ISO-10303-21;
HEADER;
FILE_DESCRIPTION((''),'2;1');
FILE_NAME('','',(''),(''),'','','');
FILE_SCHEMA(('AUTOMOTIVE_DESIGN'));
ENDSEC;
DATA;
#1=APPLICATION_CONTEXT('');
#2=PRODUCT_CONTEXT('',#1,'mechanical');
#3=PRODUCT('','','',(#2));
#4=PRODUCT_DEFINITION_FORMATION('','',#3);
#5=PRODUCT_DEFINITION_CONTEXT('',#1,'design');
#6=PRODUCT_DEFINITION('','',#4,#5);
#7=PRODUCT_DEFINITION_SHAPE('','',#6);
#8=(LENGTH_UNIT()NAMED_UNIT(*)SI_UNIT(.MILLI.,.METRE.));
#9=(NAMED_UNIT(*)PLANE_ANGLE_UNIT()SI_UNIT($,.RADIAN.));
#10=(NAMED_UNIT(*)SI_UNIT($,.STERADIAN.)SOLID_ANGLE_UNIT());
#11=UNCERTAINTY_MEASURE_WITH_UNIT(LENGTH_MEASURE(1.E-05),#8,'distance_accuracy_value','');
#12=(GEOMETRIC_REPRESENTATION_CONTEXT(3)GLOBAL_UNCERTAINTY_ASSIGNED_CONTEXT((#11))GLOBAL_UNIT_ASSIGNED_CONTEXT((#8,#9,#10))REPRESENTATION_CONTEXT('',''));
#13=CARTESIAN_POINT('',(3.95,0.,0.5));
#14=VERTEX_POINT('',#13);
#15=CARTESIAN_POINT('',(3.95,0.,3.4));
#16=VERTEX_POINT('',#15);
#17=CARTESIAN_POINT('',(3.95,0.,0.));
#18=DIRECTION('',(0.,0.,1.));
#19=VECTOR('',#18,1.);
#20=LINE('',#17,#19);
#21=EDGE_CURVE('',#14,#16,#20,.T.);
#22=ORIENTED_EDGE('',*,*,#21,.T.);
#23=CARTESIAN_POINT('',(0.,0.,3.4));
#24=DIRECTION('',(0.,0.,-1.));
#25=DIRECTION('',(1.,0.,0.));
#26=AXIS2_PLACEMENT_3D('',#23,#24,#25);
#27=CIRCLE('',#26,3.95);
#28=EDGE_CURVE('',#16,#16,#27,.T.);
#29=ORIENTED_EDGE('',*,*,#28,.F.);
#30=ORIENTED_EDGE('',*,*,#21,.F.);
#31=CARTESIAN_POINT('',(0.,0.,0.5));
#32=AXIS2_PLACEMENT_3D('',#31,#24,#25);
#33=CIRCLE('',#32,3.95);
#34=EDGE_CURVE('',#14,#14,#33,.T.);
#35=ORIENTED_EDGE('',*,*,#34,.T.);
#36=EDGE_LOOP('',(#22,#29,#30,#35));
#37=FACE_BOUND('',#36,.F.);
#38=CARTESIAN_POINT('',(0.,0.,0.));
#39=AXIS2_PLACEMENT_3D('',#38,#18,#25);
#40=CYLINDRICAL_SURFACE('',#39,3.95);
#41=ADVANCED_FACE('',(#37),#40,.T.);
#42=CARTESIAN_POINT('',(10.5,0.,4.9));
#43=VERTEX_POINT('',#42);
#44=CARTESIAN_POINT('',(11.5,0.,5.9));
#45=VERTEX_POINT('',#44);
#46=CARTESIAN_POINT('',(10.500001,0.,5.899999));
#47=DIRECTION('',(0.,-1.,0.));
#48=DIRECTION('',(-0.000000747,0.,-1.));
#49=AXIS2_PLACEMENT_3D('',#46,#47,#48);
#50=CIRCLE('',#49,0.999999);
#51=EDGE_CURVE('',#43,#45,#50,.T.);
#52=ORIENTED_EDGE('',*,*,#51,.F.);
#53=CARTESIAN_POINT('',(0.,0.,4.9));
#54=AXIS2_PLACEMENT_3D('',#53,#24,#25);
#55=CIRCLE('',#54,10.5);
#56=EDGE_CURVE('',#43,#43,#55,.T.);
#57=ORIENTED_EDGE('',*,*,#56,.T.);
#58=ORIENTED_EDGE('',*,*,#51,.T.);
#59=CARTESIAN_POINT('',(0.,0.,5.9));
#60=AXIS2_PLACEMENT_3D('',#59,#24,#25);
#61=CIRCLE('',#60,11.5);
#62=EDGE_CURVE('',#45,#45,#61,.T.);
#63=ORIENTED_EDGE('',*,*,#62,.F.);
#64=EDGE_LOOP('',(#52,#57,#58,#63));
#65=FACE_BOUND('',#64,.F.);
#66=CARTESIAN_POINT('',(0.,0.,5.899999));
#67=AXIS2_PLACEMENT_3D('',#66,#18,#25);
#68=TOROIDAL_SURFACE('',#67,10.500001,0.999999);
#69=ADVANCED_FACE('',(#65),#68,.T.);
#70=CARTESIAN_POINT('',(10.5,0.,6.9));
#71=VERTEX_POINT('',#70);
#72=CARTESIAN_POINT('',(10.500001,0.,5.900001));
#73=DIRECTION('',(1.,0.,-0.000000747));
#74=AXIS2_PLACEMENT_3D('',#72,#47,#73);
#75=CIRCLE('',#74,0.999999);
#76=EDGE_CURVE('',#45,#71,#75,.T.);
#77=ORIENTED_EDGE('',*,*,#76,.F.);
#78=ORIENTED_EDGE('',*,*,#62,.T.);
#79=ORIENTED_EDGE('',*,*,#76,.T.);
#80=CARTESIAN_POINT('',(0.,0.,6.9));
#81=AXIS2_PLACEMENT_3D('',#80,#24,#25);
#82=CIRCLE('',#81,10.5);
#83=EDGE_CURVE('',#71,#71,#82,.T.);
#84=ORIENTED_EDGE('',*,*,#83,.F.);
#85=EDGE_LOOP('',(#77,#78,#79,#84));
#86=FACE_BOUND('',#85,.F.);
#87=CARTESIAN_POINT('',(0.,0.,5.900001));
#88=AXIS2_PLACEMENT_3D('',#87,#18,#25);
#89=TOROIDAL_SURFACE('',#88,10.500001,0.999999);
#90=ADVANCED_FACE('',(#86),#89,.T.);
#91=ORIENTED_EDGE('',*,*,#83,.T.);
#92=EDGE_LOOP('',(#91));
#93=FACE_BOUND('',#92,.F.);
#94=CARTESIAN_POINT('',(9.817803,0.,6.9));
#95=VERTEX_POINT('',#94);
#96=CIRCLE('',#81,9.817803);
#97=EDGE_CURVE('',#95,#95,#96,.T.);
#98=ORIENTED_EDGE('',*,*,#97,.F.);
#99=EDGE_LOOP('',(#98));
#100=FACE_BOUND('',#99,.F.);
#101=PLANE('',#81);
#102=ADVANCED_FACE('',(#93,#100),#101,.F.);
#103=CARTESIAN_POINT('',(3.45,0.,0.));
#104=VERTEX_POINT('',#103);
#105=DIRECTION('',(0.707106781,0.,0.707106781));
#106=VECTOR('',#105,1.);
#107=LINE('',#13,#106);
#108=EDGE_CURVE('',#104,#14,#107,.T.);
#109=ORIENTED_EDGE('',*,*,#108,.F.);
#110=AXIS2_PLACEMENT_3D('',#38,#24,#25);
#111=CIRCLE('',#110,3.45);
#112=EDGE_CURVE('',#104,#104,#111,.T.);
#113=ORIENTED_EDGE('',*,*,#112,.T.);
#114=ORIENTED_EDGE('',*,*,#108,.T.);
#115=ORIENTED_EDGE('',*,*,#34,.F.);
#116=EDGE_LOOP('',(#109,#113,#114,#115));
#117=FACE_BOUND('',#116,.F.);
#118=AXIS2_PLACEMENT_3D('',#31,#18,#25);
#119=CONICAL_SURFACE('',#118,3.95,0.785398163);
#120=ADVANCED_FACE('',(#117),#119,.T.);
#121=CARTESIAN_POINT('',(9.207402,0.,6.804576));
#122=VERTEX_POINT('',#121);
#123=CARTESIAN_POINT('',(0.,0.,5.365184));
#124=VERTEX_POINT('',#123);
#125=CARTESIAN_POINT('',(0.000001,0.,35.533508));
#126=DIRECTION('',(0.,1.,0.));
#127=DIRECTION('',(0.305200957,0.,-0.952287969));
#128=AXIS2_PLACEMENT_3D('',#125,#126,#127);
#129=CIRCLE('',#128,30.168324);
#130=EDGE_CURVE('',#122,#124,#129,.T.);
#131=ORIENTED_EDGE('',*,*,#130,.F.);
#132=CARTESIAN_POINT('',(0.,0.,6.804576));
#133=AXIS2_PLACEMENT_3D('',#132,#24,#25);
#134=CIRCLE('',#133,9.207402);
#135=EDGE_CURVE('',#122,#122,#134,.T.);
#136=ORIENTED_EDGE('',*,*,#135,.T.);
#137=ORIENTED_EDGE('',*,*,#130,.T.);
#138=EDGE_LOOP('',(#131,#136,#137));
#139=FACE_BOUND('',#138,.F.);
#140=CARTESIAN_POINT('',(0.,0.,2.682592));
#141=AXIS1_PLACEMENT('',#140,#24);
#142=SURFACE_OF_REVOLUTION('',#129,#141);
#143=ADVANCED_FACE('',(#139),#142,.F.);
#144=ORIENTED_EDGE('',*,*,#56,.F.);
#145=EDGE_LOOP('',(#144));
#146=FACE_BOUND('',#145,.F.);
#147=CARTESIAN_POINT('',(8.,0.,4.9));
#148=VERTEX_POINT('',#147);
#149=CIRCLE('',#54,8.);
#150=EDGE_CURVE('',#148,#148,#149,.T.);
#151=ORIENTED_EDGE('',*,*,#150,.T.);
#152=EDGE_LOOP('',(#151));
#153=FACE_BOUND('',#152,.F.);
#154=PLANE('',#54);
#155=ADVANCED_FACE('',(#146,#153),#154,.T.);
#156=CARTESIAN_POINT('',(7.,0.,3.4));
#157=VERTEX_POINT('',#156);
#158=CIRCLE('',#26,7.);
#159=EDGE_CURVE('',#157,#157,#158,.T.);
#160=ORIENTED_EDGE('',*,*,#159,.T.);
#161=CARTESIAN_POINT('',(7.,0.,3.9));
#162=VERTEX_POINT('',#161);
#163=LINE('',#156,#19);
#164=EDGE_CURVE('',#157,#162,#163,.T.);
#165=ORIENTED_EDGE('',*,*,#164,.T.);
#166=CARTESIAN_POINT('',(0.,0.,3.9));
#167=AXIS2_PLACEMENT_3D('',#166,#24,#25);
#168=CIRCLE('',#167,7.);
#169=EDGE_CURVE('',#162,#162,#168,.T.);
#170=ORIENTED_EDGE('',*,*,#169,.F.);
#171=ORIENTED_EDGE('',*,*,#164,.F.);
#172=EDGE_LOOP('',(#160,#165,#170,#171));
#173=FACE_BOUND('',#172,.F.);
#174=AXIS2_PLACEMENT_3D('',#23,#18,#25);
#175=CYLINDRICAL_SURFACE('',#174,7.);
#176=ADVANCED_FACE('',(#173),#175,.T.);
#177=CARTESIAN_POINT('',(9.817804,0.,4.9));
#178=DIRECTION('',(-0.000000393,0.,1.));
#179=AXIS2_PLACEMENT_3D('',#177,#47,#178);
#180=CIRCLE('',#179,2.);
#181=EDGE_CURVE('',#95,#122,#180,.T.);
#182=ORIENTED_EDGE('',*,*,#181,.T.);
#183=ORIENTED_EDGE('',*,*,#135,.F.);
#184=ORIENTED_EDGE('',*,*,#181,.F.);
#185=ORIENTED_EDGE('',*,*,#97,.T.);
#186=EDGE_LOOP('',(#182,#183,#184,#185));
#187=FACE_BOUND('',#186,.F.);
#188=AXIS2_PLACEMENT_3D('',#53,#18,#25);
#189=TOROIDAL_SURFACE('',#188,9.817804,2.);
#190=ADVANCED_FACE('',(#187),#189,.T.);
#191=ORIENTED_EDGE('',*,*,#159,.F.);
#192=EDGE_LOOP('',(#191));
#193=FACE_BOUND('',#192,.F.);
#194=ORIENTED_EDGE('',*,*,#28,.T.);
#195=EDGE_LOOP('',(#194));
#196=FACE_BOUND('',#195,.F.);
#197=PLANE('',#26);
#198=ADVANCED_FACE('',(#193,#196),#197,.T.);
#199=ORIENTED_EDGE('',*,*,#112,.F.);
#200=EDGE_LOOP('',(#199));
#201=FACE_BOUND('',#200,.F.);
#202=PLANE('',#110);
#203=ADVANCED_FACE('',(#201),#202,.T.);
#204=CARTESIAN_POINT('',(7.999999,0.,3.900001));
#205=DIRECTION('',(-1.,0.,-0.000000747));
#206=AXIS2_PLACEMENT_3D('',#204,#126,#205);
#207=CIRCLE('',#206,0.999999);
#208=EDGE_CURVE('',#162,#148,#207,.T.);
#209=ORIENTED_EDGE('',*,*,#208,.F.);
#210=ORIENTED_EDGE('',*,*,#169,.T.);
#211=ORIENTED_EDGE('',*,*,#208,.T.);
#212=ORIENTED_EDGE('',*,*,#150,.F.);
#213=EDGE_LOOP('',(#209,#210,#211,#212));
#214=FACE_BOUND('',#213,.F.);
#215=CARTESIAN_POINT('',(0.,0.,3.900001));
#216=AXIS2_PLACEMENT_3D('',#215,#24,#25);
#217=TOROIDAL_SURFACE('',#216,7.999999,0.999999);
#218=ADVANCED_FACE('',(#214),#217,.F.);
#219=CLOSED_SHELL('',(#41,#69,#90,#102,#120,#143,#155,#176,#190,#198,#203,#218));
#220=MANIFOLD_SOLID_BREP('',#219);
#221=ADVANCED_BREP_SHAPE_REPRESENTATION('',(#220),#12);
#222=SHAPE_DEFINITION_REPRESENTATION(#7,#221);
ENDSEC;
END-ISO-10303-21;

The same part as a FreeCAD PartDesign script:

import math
import FreeCAD as App
import Part
import Sketcher
Q = App.Units.Quantity


def edges_at(feature, points):
    """Names of the edges that pass closest to the given points."""
    edges = feature.Shape.Edges
    near = lambda p: min(range(len(edges)), key=lambda i: edges[i].distToShape(Part.Vertex(*p))[0])
    return sorted({f"Edge{near(p) + 1}" for p in points})

doc = App.newDocument("Part")
body = doc.addObject("PartDesign::Body", "Body")

sketch1 = doc.addObject("Sketcher::SketchObject", "Sketch")
body.addObject(sketch1)
sketch1.AttachmentSupport = (doc.XZ_Plane, [""])
sketch1.MapMode = "FlatFace"
sketch1.addGeometry([
    Part.LineSegment(App.Vector(0, 5.4, 0), App.Vector(0, 0, 0)),
    Part.LineSegment(App.Vector(0, 0, 0), App.Vector(4, 0, 0)),
    Part.LineSegment(App.Vector(4, 0, 0), App.Vector(4, 3.4, 0)),
    Part.LineSegment(App.Vector(4, 3.4, 0), App.Vector(7, 3.4, 0)),
    Part.LineSegment(App.Vector(7, 3.4, 0), App.Vector(7, 3.9, 0)),
    Part.ArcOfCircle(Part.Circle(App.Vector(8, 3.9, 0), App.Vector(0, 0, 1), 1), math.radians(90), math.radians(180)),
    Part.LineSegment(App.Vector(8, 4.9, 0), App.Vector(10.5, 4.9, 0)),
    Part.ArcOfCircle(Part.Circle(App.Vector(10.5, 5.9, 0), App.Vector(0, 0, 1), 1), math.radians(-90), math.radians(0)),
    Part.ArcOfCircle(Part.Circle(App.Vector(10.5, 5.9, 0), App.Vector(0, 0, 1), 1), math.radians(0), math.radians(90)),
    Part.LineSegment(App.Vector(10.5, 6.9, 0), App.Vector(9.8, 6.9, 0)),
    Part.ArcOfCircle(Part.Circle(App.Vector(9.8, 4.9, 0), App.Vector(0, 0, 1), 2), math.radians(90), math.radians(107.77)),
    Part.ArcOfCircle(Part.Circle(App.Vector(0, 35.5, 0), App.Vector(0, 0, 1), 30.2), math.radians(-90), math.radians(-72.23)),
], False)
sketch1.addConstraint([
    Sketcher.Constraint("Coincident", 0, 2, 1, 1),
    Sketcher.Constraint("Coincident", 1, 2, 2, 1),
    Sketcher.Constraint("Coincident", 2, 2, 3, 1),
    Sketcher.Constraint("Coincident", 3, 2, 4, 1),
    Sketcher.Constraint("Tangent", 4, 2, 5, 2),
    Sketcher.Constraint("Tangent", 5, 1, 6, 1),
    Sketcher.Constraint("Tangent", 6, 2, 7, 1),
    Sketcher.Constraint("Tangent", 7, 2, 8, 1),
    Sketcher.Constraint("Tangent", 8, 2, 9, 1),
    Sketcher.Constraint("Tangent", 9, 2, 10, 1),
    Sketcher.Constraint("Tangent", 10, 2, 11, 2),
    Sketcher.Constraint("Coincident", 11, 1, 0, 1),
    Sketcher.Constraint("Vertical", 0),
    Sketcher.Constraint("Horizontal", 1),
    Sketcher.Constraint("Vertical", 2),
    Sketcher.Constraint("Horizontal", 3),
    Sketcher.Constraint("Vertical", 4),
    Sketcher.Constraint("Horizontal", 6),
    Sketcher.Constraint("Horizontal", 9),
    Sketcher.Constraint("Coincident", 0, 2, -1, 1),
    Sketcher.Constraint("Equal", 5, 7),
    Sketcher.Constraint("Equal", 7, 8),
    Sketcher.Constraint("PointOnObject", 11, 3, -2),
    Sketcher.Constraint("Horizontal", 10, 3, 5, 1),
    Sketcher.Constraint("Horizontal", 8, 3, 7, 2),
    Sketcher.Constraint("Radius", 5, Q("0.999999 mm")),
    Sketcher.Constraint("DistanceX", 6, 1, 6, 2, Q("2.5 mm")),
    Sketcher.Constraint("DistanceY", 2, 1, 2, 2, Q("3.4 mm")),
    Sketcher.Constraint("DistanceY", 4, 1, 4, 2, Q("0.5 mm")),
    Sketcher.Constraint("DistanceX", -1, 1, 5, 3, Q("7.999999 mm")),
    Sketcher.Constraint("DistanceX", 1, 1, 1, 2, Q("3.95 mm")),
    Sketcher.Constraint("Radius", 11, Q("30.168324 mm")),
    Sketcher.Constraint("DistanceX", 10, 2, 9, 2, Q("0.610401 mm")),
])
revolution = doc.addObject("PartDesign::Revolution", "Revolution")
body.addObject(revolution)
revolution.Profile = sketch1
revolution.ReferenceAxis = (sketch1, ["V_Axis"])
revolution.Angle = 360
doc.recompute()

chamfer = doc.addObject("PartDesign::Chamfer", "Chamfer")
body.addObject(chamfer)
chamfer.Base = (revolution, edges_at(revolution, [(-3.95, 0, 0)]))
chamfer.Size = 0.5

doc.recompute()
